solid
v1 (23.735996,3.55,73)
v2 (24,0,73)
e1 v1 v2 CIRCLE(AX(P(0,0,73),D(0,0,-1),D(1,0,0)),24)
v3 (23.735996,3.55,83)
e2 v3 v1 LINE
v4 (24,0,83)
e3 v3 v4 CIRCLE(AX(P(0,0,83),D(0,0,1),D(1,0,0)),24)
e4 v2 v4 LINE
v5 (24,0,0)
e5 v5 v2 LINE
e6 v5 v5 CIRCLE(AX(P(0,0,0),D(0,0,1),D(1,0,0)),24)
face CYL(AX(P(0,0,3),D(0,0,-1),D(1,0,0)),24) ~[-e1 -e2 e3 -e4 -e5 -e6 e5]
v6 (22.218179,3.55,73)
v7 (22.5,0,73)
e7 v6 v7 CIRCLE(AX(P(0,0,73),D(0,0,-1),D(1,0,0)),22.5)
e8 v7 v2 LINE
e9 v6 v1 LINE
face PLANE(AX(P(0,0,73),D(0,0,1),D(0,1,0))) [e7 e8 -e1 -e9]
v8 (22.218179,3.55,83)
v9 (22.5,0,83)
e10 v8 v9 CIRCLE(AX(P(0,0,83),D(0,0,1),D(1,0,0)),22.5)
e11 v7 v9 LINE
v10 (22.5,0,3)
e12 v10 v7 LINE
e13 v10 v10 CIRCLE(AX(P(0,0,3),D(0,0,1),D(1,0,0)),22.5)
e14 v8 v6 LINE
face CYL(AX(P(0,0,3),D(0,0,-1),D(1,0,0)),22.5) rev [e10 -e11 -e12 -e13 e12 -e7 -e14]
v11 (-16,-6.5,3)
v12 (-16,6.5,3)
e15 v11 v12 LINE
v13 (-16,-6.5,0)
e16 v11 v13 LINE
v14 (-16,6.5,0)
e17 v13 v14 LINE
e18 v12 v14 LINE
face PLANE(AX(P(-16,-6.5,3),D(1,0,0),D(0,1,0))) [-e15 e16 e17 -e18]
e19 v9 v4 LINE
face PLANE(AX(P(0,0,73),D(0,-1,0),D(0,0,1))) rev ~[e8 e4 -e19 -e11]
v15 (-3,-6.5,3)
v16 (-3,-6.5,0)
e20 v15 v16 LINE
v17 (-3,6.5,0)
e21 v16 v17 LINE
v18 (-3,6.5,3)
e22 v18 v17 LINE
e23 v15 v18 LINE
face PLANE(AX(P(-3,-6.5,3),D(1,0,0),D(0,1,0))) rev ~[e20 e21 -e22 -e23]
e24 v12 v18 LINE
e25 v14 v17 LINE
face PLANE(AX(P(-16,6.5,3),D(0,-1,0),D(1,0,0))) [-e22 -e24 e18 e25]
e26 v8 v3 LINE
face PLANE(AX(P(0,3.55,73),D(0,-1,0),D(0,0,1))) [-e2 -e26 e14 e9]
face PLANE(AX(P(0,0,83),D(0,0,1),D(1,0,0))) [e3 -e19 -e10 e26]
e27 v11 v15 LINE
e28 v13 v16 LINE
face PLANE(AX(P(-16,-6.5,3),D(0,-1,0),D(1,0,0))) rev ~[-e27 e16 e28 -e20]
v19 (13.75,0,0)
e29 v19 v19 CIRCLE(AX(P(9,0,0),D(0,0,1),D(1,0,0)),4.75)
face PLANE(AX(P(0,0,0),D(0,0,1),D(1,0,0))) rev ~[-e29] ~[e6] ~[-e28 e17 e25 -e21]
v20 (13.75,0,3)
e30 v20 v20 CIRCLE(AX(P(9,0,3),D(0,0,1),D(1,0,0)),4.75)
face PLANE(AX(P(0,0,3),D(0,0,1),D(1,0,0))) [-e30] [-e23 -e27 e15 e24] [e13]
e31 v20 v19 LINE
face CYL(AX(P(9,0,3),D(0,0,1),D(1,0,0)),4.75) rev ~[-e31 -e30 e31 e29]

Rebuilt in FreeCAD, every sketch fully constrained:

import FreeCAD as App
import Part
import Sketcher

V = App.Vector


def add_polygon(sketch, points):
    """Adds a closed chain of lines whose ends are joined by coincident constraints."""
    first, n = sketch.GeometryCount, len(points)
    for a, b in zip(points, points[1:] + points[:1]):
        sketch.addGeometry(Part.LineSegment(App.Vector(*a, 0), App.Vector(*b, 0)), False)
    for i in range(n):
        sketch.addConstraint(Sketcher.Constraint("Coincident", first + i, 2, first + (i + 1) % n, 1))

doc = App.newDocument("Part")
body = doc.addObject("PartDesign::Body", "Body")

# Sketch on XY plane
sketch1 = doc.addObject("Sketcher::SketchObject", "Sketch")
body.addObject(sketch1)
sketch1.AttachmentSupport = (doc.XY_Plane, [""])
sketch1.MapMode = "FlatFace"
sketch1.addGeometry(Part.Circle(V(0, 0, 0), V(0, 0, 1), 24), False)
sketch1.addConstraint([
    Sketcher.Constraint("Coincident", 0, 3, -1, 1),
    Sketcher.Constraint("Diameter", 0, 48.0),
])
pad1 = doc.addObject("PartDesign::Pad", "Pad")
body.addObject(pad1)
pad1.Profile = sketch1
pad1.Length = 3

# Sketch on XY plane
sketch2 = doc.addObject("Sketcher::SketchObject", "Sketch001")
body.addObject(sketch2)
sketch2.AttachmentSupport = (doc.XY_Plane, [""])
sketch2.MapMode = "FlatFace"
sketch2.AttachmentOffset = App.Placement(V(0, 0, 3), App.Rotation())
sketch2.addGeometry([
    Part.Circle(V(0, 0, 0), V(0, 0, 1), 24),
    Part.Circle(V(0, 0, 0), V(0, 0, 1), 22),
], False)
sketch2.addConstraint([
    Sketcher.Constraint("Coincident", 0, 3, -1, 1),
    Sketcher.Constraint("Coincident", 1, 3, -1, 1),
    Sketcher.Constraint("Diameter", 0, 48.0),
    Sketcher.Constraint("Diameter", 1, 45.0),
])
pad2 = doc.addObject("PartDesign::Pad", "Pad001")
body.addObject(pad2)
pad2.Profile = sketch2
pad2.Length = 80

# Sketch on XY plane
sketch3 = doc.addObject("Sketcher::SketchObject", "Sketch002")
body.addObject(sketch3)
sketch3.AttachmentSupport = (doc.XY_Plane, [""])
sketch3.MapMode = "FlatFace"
sketch3.AttachmentOffset = App.Placement(V(0, 0, 3), App.Rotation())
add_polygon(sketch3, [(-16, 6.5), (-16, -6.5), (-3, -6.5), (-3, 6.5)])  # lines 0-3
sketch3.addGeometry(Part.Circle(V(9, 0, 0), V(0, 0, 1), 4.8), False)  # 4
sketch3.addConstraint([
    Sketcher.Constraint("Vertical", 0),
    Sketcher.Constraint("Horizontal", 1),
    Sketcher.Constraint("Vertical", 2),
    Sketcher.Constraint("Horizontal", 3),
    Sketcher.Constraint("PointOnObject", 4, 3, -1),
    Sketcher.Constraint("Equal", 3, 0),
    Sketcher.Constraint("Diameter", 4, 9.5),
    Sketcher.Constraint("DistanceX", 1, 1, 1, 2, 13.0),
    Sketcher.Constraint("DistanceX", -1, 1, 4, 3, 9.0),
    Sketcher.Constraint("DistanceX", 0, 2, -1, 1, 16.0),
    Sketcher.Constraint("DistanceY", 0, 2, -1, 1, 6.5),
])
pocket1 = doc.addObject("PartDesign::Pocket", "Pocket")
body.addObject(pocket1)
pocket1.Profile = sketch3
pocket1.Type = "ThroughAll"

# Sketch on YZ plane
sketch4 = doc.addObject("Sketcher::SketchObject", "Sketch003")
body.addObject(sketch4)
sketch4.AttachmentSupport = (doc.YZ_Plane, [""])
sketch4.MapMode = "FlatFace"
add_polygon(sketch4, [(0, 83), (0, 73), (3.5, 73), (3.5, 83)])  # lines 0-3
sketch4.addConstraint([
    Sketcher.Constraint("Vertical", 0),
    Sketcher.Constraint("Horizontal", 1),
    Sketcher.Constraint("Vertical", 2),
    Sketcher.Constraint("Horizontal", 3),
    Sketcher.Constraint("PointOnObject", 0, 2, -2),
    Sketcher.Constraint("DistanceY", 0, 2, 0, 1, 10.0),
    Sketcher.Constraint("DistanceY", -1, 1, 0, 2, 73.0),
    Sketcher.Constraint("DistanceX", 1, 1, 1, 2, 3.55),
])
pocket2 = doc.addObject("PartDesign::Pocket", "Pocket001")
body.addObject(pocket2)
pocket2.Profile = sketch4
pocket2.Length = 25
pocket2.Reversed = True

doc.recompute()
